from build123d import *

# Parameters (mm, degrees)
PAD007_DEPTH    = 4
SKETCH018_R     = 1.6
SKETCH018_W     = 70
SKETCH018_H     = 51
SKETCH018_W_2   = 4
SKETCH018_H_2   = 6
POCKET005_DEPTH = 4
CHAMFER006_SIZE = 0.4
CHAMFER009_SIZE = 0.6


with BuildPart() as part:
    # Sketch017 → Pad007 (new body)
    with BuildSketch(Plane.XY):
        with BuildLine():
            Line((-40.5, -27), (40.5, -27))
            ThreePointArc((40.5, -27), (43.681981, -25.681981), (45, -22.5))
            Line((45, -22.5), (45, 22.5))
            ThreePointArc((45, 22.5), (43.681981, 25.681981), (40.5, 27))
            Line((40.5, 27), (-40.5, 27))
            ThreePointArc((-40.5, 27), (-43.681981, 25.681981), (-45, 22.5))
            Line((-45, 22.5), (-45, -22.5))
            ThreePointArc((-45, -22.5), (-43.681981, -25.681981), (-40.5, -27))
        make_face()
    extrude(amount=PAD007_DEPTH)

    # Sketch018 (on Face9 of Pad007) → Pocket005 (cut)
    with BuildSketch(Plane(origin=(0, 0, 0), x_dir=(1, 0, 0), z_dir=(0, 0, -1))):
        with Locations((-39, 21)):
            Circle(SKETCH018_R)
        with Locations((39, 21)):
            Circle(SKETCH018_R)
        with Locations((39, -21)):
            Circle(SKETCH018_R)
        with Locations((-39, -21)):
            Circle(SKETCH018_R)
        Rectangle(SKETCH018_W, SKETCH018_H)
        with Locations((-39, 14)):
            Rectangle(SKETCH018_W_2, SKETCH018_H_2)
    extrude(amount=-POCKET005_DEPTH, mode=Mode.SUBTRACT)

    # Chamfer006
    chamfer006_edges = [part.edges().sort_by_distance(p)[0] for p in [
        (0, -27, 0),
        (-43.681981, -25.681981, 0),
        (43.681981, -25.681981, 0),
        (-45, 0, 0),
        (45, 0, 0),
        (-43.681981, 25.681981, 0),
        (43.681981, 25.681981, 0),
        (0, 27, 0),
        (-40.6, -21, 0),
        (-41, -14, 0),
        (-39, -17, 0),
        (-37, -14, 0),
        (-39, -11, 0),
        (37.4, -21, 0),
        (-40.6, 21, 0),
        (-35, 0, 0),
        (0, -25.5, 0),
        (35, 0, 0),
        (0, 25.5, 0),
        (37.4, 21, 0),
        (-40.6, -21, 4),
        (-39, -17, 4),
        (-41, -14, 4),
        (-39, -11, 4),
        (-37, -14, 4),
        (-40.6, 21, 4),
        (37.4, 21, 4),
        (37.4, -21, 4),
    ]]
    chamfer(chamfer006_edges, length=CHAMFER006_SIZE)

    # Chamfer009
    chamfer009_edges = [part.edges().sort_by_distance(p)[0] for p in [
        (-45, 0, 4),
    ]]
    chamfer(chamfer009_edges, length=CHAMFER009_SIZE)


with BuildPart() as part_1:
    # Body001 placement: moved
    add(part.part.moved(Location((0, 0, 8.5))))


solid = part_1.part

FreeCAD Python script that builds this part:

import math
import FreeCAD as App
import Part
import Sketcher
from FreeCAD import Vector
Q = App.Units.Quantity


def edges_at(feature, points):
    """Names of the edges that pass closest to the given points."""
    edges = feature.Shape.Edges
    near = lambda p: min(range(len(edges)), key=lambda i: edges[i].distToShape(Part.Vertex(*p))[0])
    return sorted({f"Edge{near(p) + 1}" for p in points})


def add_polygon(sketch, points):
    """Adds a closed chain of lines whose ends are joined by coincident constraints."""
    first, n = sketch.GeometryCount, len(points)
    for a, b in zip(points, points[1:] + points[:1]):
        sketch.addGeometry(Part.LineSegment(App.Vector(*a, 0), App.Vector(*b, 0)), False)
    for i in range(n):
        sketch.addConstraint(Sketcher.Constraint("Coincident", first + i, 2, first + (i + 1) % n, 1))

doc = App.newDocument("Part")
body = doc.addObject("PartDesign::Body", "Body")

# Sketch on XY plane
sketch1 = doc.addObject("Sketcher::SketchObject", "Sketch")
body.addObject(sketch1)
sketch1.AttachmentSupport = (doc.XY_Plane, [""])
sketch1.MapMode = "FlatFace"
sketch1.addGeometry(Part.LineSegment(Vector(-40.5, -27, 0), Vector(40.5, -27, 0)), False)
sketch1.addGeometry(Part.ArcOfCircle(Part.Circle(Vector(40.500002, -22.500002, 0), Vector(0, 0, 1), 4.499998), math.radians(-90.000021), math.radians(0.000021)), False)
sketch1.addGeometry(Part.LineSegment(Vector(45, -22.5, 0), Vector(45, 22.5, 0)), False)
sketch1.addGeometry(Part.ArcOfCircle(Part.Circle(Vector(40.500002, 22.500002, 0), Vector(0, 0, 1), 4.499998), math.radians(-0.000021), math.radians(90.000021)), False)
sketch1.addGeometry(Part.LineSegment(Vector(40.5, 27, 0), Vector(-40.5, 27, 0)), False)
sketch1.addGeometry(Part.ArcOfCircle(Part.Circle(Vector(-40.500002, 22.500002, 0), Vector(0, 0, 1), 4.499998), math.radians(89.999979), math.radians(180.000021)), False)
sketch1.addGeometry(Part.LineSegment(Vector(-45, 22.5, 0), Vector(-45, -22.5, 0)), False)
sketch1.addGeometry(Part.ArcOfCircle(Part.Circle(Vector(-40.500002, -22.500002, 0), Vector(0, 0, 1), 4.499998), math.radians(179.999979), math.radians(270.000021)), False)
sketch1.addConstraint(Sketcher.Constraint("Tangent", 0, 2, 1, 1))
sketch1.addConstraint(Sketcher.Constraint("Tangent", 1, 2, 2, 1))
sketch1.addConstraint(Sketcher.Constraint("Tangent", 2, 2, 3, 1))
sketch1.addConstraint(Sketcher.Constraint("Tangent", 3, 2, 4, 1))
sketch1.addConstraint(Sketcher.Constraint("Tangent", 4, 2, 5, 1))
sketch1.addConstraint(Sketcher.Constraint("Tangent", 5, 2, 6, 1))
sketch1.addConstraint(Sketcher.Constraint("Tangent", 6, 2, 7, 1))
sketch1.addConstraint(Sketcher.Constraint("Tangent", 7, 2, 0, 1))
sketch1.addConstraint(Sketcher.Constraint("Horizontal", 0))
sketch1.addConstraint(Sketcher.Constraint("Vertical", 2))
sketch1.addConstraint(Sketcher.Constraint("Horizontal", 4))
sketch1.addConstraint(Sketcher.Constraint("Vertical", 6))
sketch1.addConstraint(Sketcher.Constraint("Equal", 1, 3))
sketch1.addConstraint(Sketcher.Constraint("Equal", 3, 5))
sketch1.addConstraint(Sketcher.Constraint("Equal", 5, 7))
sketch1.addConstraint(Sketcher.Constraint("Symmetric", 1, 3, 5, 3, -1, 1))
sketch1.addConstraint(Sketcher.Constraint("Radius", 1, Q("4.499998 mm")))
sketch1.addConstraint(Sketcher.Constraint("DistanceX", 0, 1, 0, 2, Q("81 mm")))
sketch1.addConstraint(Sketcher.Constraint("DistanceY", 2, 1, 2, 2, Q("45 mm")))
pad1 = doc.addObject("PartDesign::Pad", "Pad")
body.addObject(pad1)
pad1.Profile = sketch1
pad1.Length = 4

# Sketch on XY plane
sketch2 = doc.addObject("Sketcher::SketchObject", "Sketch001")
body.addObject(sketch2)
sketch2.AttachmentSupport = (doc.XY_Plane, [""])
sketch2.MapMode = "FlatFace"
sketch2.addGeometry(Part.Circle(Vector(-39, -21, 0), Vector(0, 0, 1), 1.6), False)  # 0
sketch2.addGeometry(Part.Circle(Vector(39, -21, 0), Vector(0, 0, 1), 1.6), False)  # 1
sketch2.addGeometry(Part.Circle(Vector(39, 21, 0), Vector(0, 0, 1), 1.6), False)  # 2
sketch2.addGeometry(Part.Circle(Vector(-39, 21, 0), Vector(0, 0, 1), 1.6), False)  # 3
add_polygon(sketch2, [(-35, -25.5), (-35, 25.5), (35, 25.5), (35, -25.5)])  # lines 4-7
add_polygon(sketch2, [(-41, -17), (-41, -11), (-37, -11), (-37, -17)])  # lines 8-11
sketch2.addConstraint(Sketcher.Constraint("Vertical", 4))
sketch2.addConstraint(Sketcher.Constraint("Horizontal", 5))
sketch2.addConstraint(Sketcher.Constraint("Vertical", 6))
sketch2.addConstraint(Sketcher.Constraint("Horizontal", 7))
sketch2.addConstraint(Sketcher.Constraint("Vertical", 8))
sketch2.addConstraint(Sketcher.Constraint("Horizontal", 9))
sketch2.addConstraint(Sketcher.Constraint("Vertical", 10))
sketch2.addConstraint(Sketcher.Constraint("Horizontal", 11))
sketch2.addConstraint(Sketcher.Constraint("Equal", 0, 1))
sketch2.addConstraint(Sketcher.Constraint("Equal", 1, 2))
sketch2.addConstraint(Sketcher.Constraint("Equal", 2, 3))
sketch2.addConstraint(Sketcher.Constraint("Symmetric", 0, 3, 2, 3, -1, 1))
sketch2.addConstraint(Sketcher.Constraint("Symmetric", 1, 3, 3, 3, -1, 1))
sketch2.addConstraint(Sketcher.Constraint("Symmetric", 4, 2, 6, 2, -1, 1))
sketch2.addConstraint(Sketcher.Constraint("Symmetric", 0, 3, 1, 3, -2))
sketch2.addConstraint(Sketcher.Constraint("Diameter", 0, Q("3.2 mm")))
sketch2.addConstraint(Sketcher.Constraint("DistanceX", 5, 1, 5, 2, Q("70 mm")))
sketch2.addConstraint(Sketcher.Constraint("DistanceX", 9, 1, 9, 2, Q("4 mm")))
sketch2.addConstraint(Sketcher.Constraint("DistanceY", 4, 1, 4, 2, Q("51 mm")))
sketch2.addConstraint(Sketcher.Constraint("DistanceY", 8, 1, 8, 2, Q("6 mm")))
sketch2.addConstraint(Sketcher.Constraint("DistanceX", 0, 3, -1, 1, Q("39 mm")))
sketch2.addConstraint(Sketcher.Constraint("DistanceY", 0, 3, -1, 1, Q("21 mm")))
sketch2.addConstraint(Sketcher.Constraint("DistanceX", 8, 2, -1, 1, Q("41 mm")))
sketch2.addConstraint(Sketcher.Constraint("DistanceY", 8, 2, -1, 1, Q("11 mm")))
pocket1 = doc.addObject("PartDesign::Pocket", "Pocket")
body.addObject(pocket1)
pocket1.Profile = sketch2
pocket1.Length = 4
pocket1.Reversed = True
doc.recompute()

chamfer = doc.addObject("PartDesign::Chamfer", "Chamfer")
body.addObject(chamfer)
chamfer.Base = (pocket1, edges_at(pocket1, [
    (0, -27, 0),
    (-43.682, -25.682, 0),
    (43.682, -25.682, 0),
    (-45, 0, 0),
    (45, 0, 0),
    (-43.682, 25.682, 0),
    (43.682, 25.682, 0),
    (0, 27, 0),
    (-40.6, -21, 0),
    (-41, -14, 0),
    (-39, -17, 0),
    (-37, -14, 0),
    (-39, -11, 0),
    (37.4, -21, 0),
    (-40.6, 21, 0),
    (-35, 0, 0),
    (0, -25.5, 0),
    (35, 0, 0),
    (0, 25.5, 0),
    (37.4, 21, 0),
    (-40.6, -21, 4),
    (-39, -17, 4),
    (-41, -14, 4),
    (-39, -11, 4),
    (-37, -14, 4),
    (-40.6, 21, 4),
    (37.4, 21, 4),
    (37.4, -21, 4),
]))
chamfer.Size = 0.4
doc.recompute()

chamfer2 = doc.addObject("PartDesign::Chamfer", "Chamfer001")
body.addObject(chamfer2)
chamfer2.Base = (chamfer, edges_at(chamfer, [(-45, 0, 4)]))
chamfer2.Size = 0.6
body2 = doc.addObject("PartDesign::Body", "Body001")
doc.recompute()

body.Placement = App.Placement(Vector(0, 0, 8.5), App.Rotation(Vector(0, 0, 1), 0))
boolean = doc.addObject("PartDesign::Boolean", "Boolean")
body2.addObject(boolean)
boolean.Type = "Fuse"
boolean.addObjects([body])

doc.recompute()
